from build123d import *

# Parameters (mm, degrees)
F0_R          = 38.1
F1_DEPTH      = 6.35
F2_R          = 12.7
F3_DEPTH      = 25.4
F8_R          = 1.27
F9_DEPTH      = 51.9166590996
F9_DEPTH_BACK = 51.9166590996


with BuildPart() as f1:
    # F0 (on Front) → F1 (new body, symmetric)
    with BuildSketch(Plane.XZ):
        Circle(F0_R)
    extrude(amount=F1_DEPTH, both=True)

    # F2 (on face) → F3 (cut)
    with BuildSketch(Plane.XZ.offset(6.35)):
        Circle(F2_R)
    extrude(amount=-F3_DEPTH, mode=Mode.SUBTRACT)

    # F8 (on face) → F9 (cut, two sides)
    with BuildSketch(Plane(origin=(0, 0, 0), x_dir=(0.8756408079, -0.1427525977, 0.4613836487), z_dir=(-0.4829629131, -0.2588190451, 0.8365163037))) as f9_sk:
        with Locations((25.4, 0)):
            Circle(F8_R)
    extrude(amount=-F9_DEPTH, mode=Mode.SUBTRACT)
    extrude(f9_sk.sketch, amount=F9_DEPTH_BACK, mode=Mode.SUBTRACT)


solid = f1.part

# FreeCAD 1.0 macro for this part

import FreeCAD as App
import Part
import Sketcher
from FreeCAD import Vector
Q = App.Units.Quantity

doc = App.newDocument("Part")
body = doc.addObject("PartDesign::Body", "Body")

# Sketch on XZ plane
sketch1 = body.newObject("Sketcher::SketchObject", "Sketch")
sketch1.AttachmentSupport = (doc.getObject("XZ_Plane"), [""])
sketch1.MapMode = "FlatFace"
sketch1.addGeometry(Part.Circle(Vector(0, 0, 0), Vector(0, 0, 1), 38), False)
sketch1.addConstraint(Sketcher.Constraint("Coincident", 0, 3, -1, 1))
sketch1.addConstraint(Sketcher.Constraint("Diameter", 0, Q("3 in")))
pad1 = body.newObject("PartDesign::Pad", "Pad")
pad1.Profile = sketch1
pad1.Length = Q("0.5 in")
pad1.Midplane = True

# Sketch on XZ plane
sketch2 = body.newObject("Sketcher::SketchObject", "Sketch001")
sketch2.AttachmentSupport = (doc.getObject("XZ_Plane"), [""])
sketch2.MapMode = "FlatFace"
sketch2.AttachmentOffset = App.Placement(Vector(0, 0, 0.25 * 25.4), App.Rotation())
sketch2.addGeometry(Part.Circle(Vector(0, 0, 0), Vector(0, 0, 1), 13), False)
sketch2.addConstraint(Sketcher.Constraint("Coincident", 0, 3, -1, 1))
sketch2.addConstraint(Sketcher.Constraint("Diameter", 0, Q("1 in")))
pocket1 = body.newObject("PartDesign::Pocket", "Pocket")
pocket1.Profile = sketch2
pocket1.Length = Q("1 in")

# Sketch on an angled plane
sketch3 = body.newObject("Sketcher::SketchObject", "Sketch002")
sketch3.Placement = App.Placement(Vector(0, 0, 0), App.Rotation(Vector(0.875640808, -0.142752598, 0.461383649), Vector(0, 0.955319003, 0.295576728), Vector(-0.482962913, -0.258819045, 0.836516304), "ZXY"))
sketch3.addGeometry(Part.Circle(Vector(25.4, 0, 0), Vector(0, 0, 1), 1.3), False)
sketch3.addConstraint(Sketcher.Constraint("PointOnObject", 0, 3, -1))
sketch3.addConstraint(Sketcher.Constraint("Diameter", 0, Q("0.1 in")))
sketch3.addConstraint(Sketcher.Constraint("DistanceX", -1, 1, 0, 3, Q("1 in")))
pocket2 = body.newObject("PartDesign::Pocket", "Pocket001")
pocket2.Profile = sketch3
pocket2.Type = "ThroughAll"
pocket2.Midplane = True

doc.recompute()
